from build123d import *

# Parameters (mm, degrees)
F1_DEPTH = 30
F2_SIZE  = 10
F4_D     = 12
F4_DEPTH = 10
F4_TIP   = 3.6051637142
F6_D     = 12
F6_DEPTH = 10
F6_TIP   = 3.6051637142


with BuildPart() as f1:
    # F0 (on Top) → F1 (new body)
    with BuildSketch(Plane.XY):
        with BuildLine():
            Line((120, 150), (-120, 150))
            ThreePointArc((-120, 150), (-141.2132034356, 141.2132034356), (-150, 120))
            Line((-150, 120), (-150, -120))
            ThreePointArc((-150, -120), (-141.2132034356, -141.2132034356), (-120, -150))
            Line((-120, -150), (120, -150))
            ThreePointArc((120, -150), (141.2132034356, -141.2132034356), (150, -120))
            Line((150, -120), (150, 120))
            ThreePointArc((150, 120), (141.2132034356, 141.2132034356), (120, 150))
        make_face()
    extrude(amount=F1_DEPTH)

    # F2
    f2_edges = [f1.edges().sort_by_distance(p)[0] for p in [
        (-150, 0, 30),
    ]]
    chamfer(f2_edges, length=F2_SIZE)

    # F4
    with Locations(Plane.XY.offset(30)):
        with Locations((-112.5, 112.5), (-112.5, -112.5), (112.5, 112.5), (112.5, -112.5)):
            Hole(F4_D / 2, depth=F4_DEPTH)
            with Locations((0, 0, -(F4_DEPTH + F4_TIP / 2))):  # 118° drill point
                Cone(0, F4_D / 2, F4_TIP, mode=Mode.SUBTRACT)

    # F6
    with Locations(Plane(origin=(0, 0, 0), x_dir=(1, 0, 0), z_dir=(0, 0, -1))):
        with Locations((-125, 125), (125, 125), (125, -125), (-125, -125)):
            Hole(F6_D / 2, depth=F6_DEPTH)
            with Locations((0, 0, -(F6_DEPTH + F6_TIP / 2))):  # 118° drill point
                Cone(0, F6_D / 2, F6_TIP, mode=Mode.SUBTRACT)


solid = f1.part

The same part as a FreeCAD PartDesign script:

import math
import FreeCAD as App
import Part
import Sketcher

V = App.Vector
Q = App.Units.Quantity


def edges_at(feature, points):
    """Names of the edges that pass closest to the given points."""
    edges = feature.Shape.Edges
    near = lambda p: min(range(len(edges)), key=lambda i: edges[i].distToShape(Part.Vertex(*p))[0])
    return sorted({f"Edge{near(p) + 1}" for p in points})

doc = App.newDocument("Part")
body = doc.addObject("PartDesign::Body", "Body")

# Sketch on XY plane
sketch1 = body.newObject("Sketcher::SketchObject", "Sketch")
sketch1.AttachmentSupport = (doc.getObject("XY_Plane"), [""])
sketch1.MapMode = "FlatFace"
sketch1.addGeometry(Part.LineSegment(V(120, 150, 0), V(-120, 150, 0)), False)
sketch1.addGeometry(Part.ArcOfCircle(Part.Circle(V(-120, 120, 0), V(0, 0, 1), 30), math.radians(90), math.radians(180)), False)
sketch1.addGeometry(Part.LineSegment(V(-150, 120, 0), V(-150, -120, 0)), False)
sketch1.addGeometry(Part.ArcOfCircle(Part.Circle(V(-120, -120, 0), V(0, 0, 1), 30), math.radians(180), math.radians(270)), False)
sketch1.addGeometry(Part.LineSegment(V(-120, -150, 0), V(120, -150, 0)), False)
sketch1.addGeometry(Part.ArcOfCircle(Part.Circle(V(120, -120, 0), V(0, 0, 1), 30), math.radians(-90), math.radians(0)), False)
sketch1.addGeometry(Part.LineSegment(V(150, -120, 0), V(150, 120, 0)), False)
sketch1.addGeometry(Part.ArcOfCircle(Part.Circle(V(120, 120, 0), V(0, 0, 1), 30), math.radians(0), math.radians(90)), False)
sketch1.addConstraint(Sketcher.Constraint("Tangent", 0, 2, 1, 1))
sketch1.addConstraint(Sketcher.Constraint("Tangent", 1, 2, 2, 1))
sketch1.addConstraint(Sketcher.Constraint("Tangent", 2, 2, 3, 1))
sketch1.addConstraint(Sketcher.Constraint("Tangent", 3, 2, 4, 1))
sketch1.addConstraint(Sketcher.Constraint("Tangent", 4, 2, 5, 1))
sketch1.addConstraint(Sketcher.Constraint("Tangent", 5, 2, 6, 1))
sketch1.addConstraint(Sketcher.Constraint("Tangent", 6, 2, 7, 1))
sketch1.addConstraint(Sketcher.Constraint("Tangent", 7, 2, 0, 1))
sketch1.addConstraint(Sketcher.Constraint("Horizontal", 0))
sketch1.addConstraint(Sketcher.Constraint("Vertical", 2))
sketch1.addConstraint(Sketcher.Constraint("Horizontal", 4))
sketch1.addConstraint(Sketcher.Constraint("Vertical", 6))
sketch1.addConstraint(Sketcher.Constraint("Equal", 1, 3))
sketch1.addConstraint(Sketcher.Constraint("Equal", 3, 5))
sketch1.addConstraint(Sketcher.Constraint("Equal", 5, 7))
sketch1.addConstraint(Sketcher.Constraint("Symmetric", 1, 3, 5, 3, -1, 1))
sketch1.addConstraint(Sketcher.Constraint("Equal", 4, 2))
sketch1.addConstraint(Sketcher.Constraint("Radius", 1, Q("30 mm")))
sketch1.addConstraint(Sketcher.Constraint("DistanceX", 0, 2, 0, 1, Q("240 mm")))
pad1 = body.newObject("PartDesign::Pad", "Pad")
pad1.Profile = sketch1
pad1.Length = 30
doc.recompute()

chamfer = body.newObject("PartDesign::Chamfer", "Chamfer")
chamfer.Base = (pad1, edges_at(pad1, [(-150, 0, 30)]))
chamfer.Size = 10

# Sketch on XY plane
sketch2 = body.newObject("Sketcher::SketchObject", "Sketch001")
sketch2.AttachmentSupport = (doc.getObject("XY_Plane"), [""])
sketch2.MapMode = "FlatFace"
sketch2.AttachmentOffset = App.Placement(V(0, 0, 30), App.Rotation())
sketch2.addGeometry(Part.Circle(V(-112, 112, 0), V(0, 0, 1), 6), False)
sketch2.addGeometry(Part.Circle(V(-112, -112, 0), V(0, 0, 1), 6), False)
sketch2.addGeometry(Part.Circle(V(112, 112, 0), V(0, 0, 1), 6), False)
sketch2.addGeometry(Part.Circle(V(112, -112, 0), V(0, 0, 1), 6), False)
sketch2.addConstraint(Sketcher.Constraint("Equal", 0, 1))
sketch2.addConstraint(Sketcher.Constraint("Equal", 1, 2))
sketch2.addConstraint(Sketcher.Constraint("Equal", 2, 3))
sketch2.addConstraint(Sketcher.Constraint("Symmetric", 1, 3, 2, 3, -1, 1))
sketch2.addConstraint(Sketcher.Constraint("Symmetric", 0, 3, 3, 3, -1, 1))
sketch2.addConstraint(Sketcher.Constraint("Symmetric", 0, 3, 2, 3, -2))
sketch2.addConstraint(Sketcher.Constraint("Diameter", 0, Q("12 mm")))
sketch2.addConstraint(Sketcher.Constraint("DistanceY", 1, 3, 0, 3, Q("225 mm")))
sketch2.addConstraint(Sketcher.Constraint("DistanceX", 0, 3, 2, 3, Q("225 mm")))
doc.recompute()
hole = body.newObject("PartDesign::Hole", "Hole")
hole.Profile = sketch2
hole.ThreadType = "None"
hole.Diameter = 12
hole.DepthType = "Dimension"
hole.Depth = 10
hole.DrillPoint = "Angled"
hole.DrillPointAngle = 118

# Sketch on XY plane
sketch3 = body.newObject("Sketcher::SketchObject", "Sketch002")
sketch3.AttachmentSupport = (doc.getObject("XY_Plane"), [""])
sketch3.MapMode = "FlatFace"
sketch3.addGeometry(Part.Circle(V(-125, -125, 0), V(0, 0, 1), 6), False)
sketch3.addGeometry(Part.Circle(V(125, -125, 0), V(0, 0, 1), 6), False)
sketch3.addGeometry(Part.Circle(V(125, 125, 0), V(0, 0, 1), 6), False)
sketch3.addGeometry(Part.Circle(V(-125, 125, 0), V(0, 0, 1), 6), False)
sketch3.addConstraint(Sketcher.Constraint("Equal", 0, 1))
sketch3.addConstraint(Sketcher.Constraint("Equal", 1, 2))
sketch3.addConstraint(Sketcher.Constraint("Equal", 2, 3))
sketch3.addConstraint(Sketcher.Constraint("Symmetric", 0, 3, 2, 3, -1, 1))
sketch3.addConstraint(Sketcher.Constraint("Symmetric", 1, 3, 3, 3, -1, 1))
sketch3.addConstraint(Sketcher.Constraint("Symmetric", 0, 3, 1, 3, -2))
sketch3.addConstraint(Sketcher.Constraint("Diameter", 0, Q("12 mm")))
sketch3.addConstraint(Sketcher.Constraint("DistanceX", 0, 3, -1, 1, Q("125 mm")))
sketch3.addConstraint(Sketcher.Constraint("DistanceY", 0, 3, -1, 1, Q("125 mm")))
doc.recompute()
hole2 = body.newObject("PartDesign::Hole", "Hole001")
hole2.Profile = sketch3
hole2.ThreadType = "None"
hole2.Diameter = 12
hole2.DepthType = "Dimension"
hole2.Depth = 10
hole2.DrillPoint = "Angled"
hole2.DrillPointAngle = 118
hole2.Reversed = True

doc.recompute()
